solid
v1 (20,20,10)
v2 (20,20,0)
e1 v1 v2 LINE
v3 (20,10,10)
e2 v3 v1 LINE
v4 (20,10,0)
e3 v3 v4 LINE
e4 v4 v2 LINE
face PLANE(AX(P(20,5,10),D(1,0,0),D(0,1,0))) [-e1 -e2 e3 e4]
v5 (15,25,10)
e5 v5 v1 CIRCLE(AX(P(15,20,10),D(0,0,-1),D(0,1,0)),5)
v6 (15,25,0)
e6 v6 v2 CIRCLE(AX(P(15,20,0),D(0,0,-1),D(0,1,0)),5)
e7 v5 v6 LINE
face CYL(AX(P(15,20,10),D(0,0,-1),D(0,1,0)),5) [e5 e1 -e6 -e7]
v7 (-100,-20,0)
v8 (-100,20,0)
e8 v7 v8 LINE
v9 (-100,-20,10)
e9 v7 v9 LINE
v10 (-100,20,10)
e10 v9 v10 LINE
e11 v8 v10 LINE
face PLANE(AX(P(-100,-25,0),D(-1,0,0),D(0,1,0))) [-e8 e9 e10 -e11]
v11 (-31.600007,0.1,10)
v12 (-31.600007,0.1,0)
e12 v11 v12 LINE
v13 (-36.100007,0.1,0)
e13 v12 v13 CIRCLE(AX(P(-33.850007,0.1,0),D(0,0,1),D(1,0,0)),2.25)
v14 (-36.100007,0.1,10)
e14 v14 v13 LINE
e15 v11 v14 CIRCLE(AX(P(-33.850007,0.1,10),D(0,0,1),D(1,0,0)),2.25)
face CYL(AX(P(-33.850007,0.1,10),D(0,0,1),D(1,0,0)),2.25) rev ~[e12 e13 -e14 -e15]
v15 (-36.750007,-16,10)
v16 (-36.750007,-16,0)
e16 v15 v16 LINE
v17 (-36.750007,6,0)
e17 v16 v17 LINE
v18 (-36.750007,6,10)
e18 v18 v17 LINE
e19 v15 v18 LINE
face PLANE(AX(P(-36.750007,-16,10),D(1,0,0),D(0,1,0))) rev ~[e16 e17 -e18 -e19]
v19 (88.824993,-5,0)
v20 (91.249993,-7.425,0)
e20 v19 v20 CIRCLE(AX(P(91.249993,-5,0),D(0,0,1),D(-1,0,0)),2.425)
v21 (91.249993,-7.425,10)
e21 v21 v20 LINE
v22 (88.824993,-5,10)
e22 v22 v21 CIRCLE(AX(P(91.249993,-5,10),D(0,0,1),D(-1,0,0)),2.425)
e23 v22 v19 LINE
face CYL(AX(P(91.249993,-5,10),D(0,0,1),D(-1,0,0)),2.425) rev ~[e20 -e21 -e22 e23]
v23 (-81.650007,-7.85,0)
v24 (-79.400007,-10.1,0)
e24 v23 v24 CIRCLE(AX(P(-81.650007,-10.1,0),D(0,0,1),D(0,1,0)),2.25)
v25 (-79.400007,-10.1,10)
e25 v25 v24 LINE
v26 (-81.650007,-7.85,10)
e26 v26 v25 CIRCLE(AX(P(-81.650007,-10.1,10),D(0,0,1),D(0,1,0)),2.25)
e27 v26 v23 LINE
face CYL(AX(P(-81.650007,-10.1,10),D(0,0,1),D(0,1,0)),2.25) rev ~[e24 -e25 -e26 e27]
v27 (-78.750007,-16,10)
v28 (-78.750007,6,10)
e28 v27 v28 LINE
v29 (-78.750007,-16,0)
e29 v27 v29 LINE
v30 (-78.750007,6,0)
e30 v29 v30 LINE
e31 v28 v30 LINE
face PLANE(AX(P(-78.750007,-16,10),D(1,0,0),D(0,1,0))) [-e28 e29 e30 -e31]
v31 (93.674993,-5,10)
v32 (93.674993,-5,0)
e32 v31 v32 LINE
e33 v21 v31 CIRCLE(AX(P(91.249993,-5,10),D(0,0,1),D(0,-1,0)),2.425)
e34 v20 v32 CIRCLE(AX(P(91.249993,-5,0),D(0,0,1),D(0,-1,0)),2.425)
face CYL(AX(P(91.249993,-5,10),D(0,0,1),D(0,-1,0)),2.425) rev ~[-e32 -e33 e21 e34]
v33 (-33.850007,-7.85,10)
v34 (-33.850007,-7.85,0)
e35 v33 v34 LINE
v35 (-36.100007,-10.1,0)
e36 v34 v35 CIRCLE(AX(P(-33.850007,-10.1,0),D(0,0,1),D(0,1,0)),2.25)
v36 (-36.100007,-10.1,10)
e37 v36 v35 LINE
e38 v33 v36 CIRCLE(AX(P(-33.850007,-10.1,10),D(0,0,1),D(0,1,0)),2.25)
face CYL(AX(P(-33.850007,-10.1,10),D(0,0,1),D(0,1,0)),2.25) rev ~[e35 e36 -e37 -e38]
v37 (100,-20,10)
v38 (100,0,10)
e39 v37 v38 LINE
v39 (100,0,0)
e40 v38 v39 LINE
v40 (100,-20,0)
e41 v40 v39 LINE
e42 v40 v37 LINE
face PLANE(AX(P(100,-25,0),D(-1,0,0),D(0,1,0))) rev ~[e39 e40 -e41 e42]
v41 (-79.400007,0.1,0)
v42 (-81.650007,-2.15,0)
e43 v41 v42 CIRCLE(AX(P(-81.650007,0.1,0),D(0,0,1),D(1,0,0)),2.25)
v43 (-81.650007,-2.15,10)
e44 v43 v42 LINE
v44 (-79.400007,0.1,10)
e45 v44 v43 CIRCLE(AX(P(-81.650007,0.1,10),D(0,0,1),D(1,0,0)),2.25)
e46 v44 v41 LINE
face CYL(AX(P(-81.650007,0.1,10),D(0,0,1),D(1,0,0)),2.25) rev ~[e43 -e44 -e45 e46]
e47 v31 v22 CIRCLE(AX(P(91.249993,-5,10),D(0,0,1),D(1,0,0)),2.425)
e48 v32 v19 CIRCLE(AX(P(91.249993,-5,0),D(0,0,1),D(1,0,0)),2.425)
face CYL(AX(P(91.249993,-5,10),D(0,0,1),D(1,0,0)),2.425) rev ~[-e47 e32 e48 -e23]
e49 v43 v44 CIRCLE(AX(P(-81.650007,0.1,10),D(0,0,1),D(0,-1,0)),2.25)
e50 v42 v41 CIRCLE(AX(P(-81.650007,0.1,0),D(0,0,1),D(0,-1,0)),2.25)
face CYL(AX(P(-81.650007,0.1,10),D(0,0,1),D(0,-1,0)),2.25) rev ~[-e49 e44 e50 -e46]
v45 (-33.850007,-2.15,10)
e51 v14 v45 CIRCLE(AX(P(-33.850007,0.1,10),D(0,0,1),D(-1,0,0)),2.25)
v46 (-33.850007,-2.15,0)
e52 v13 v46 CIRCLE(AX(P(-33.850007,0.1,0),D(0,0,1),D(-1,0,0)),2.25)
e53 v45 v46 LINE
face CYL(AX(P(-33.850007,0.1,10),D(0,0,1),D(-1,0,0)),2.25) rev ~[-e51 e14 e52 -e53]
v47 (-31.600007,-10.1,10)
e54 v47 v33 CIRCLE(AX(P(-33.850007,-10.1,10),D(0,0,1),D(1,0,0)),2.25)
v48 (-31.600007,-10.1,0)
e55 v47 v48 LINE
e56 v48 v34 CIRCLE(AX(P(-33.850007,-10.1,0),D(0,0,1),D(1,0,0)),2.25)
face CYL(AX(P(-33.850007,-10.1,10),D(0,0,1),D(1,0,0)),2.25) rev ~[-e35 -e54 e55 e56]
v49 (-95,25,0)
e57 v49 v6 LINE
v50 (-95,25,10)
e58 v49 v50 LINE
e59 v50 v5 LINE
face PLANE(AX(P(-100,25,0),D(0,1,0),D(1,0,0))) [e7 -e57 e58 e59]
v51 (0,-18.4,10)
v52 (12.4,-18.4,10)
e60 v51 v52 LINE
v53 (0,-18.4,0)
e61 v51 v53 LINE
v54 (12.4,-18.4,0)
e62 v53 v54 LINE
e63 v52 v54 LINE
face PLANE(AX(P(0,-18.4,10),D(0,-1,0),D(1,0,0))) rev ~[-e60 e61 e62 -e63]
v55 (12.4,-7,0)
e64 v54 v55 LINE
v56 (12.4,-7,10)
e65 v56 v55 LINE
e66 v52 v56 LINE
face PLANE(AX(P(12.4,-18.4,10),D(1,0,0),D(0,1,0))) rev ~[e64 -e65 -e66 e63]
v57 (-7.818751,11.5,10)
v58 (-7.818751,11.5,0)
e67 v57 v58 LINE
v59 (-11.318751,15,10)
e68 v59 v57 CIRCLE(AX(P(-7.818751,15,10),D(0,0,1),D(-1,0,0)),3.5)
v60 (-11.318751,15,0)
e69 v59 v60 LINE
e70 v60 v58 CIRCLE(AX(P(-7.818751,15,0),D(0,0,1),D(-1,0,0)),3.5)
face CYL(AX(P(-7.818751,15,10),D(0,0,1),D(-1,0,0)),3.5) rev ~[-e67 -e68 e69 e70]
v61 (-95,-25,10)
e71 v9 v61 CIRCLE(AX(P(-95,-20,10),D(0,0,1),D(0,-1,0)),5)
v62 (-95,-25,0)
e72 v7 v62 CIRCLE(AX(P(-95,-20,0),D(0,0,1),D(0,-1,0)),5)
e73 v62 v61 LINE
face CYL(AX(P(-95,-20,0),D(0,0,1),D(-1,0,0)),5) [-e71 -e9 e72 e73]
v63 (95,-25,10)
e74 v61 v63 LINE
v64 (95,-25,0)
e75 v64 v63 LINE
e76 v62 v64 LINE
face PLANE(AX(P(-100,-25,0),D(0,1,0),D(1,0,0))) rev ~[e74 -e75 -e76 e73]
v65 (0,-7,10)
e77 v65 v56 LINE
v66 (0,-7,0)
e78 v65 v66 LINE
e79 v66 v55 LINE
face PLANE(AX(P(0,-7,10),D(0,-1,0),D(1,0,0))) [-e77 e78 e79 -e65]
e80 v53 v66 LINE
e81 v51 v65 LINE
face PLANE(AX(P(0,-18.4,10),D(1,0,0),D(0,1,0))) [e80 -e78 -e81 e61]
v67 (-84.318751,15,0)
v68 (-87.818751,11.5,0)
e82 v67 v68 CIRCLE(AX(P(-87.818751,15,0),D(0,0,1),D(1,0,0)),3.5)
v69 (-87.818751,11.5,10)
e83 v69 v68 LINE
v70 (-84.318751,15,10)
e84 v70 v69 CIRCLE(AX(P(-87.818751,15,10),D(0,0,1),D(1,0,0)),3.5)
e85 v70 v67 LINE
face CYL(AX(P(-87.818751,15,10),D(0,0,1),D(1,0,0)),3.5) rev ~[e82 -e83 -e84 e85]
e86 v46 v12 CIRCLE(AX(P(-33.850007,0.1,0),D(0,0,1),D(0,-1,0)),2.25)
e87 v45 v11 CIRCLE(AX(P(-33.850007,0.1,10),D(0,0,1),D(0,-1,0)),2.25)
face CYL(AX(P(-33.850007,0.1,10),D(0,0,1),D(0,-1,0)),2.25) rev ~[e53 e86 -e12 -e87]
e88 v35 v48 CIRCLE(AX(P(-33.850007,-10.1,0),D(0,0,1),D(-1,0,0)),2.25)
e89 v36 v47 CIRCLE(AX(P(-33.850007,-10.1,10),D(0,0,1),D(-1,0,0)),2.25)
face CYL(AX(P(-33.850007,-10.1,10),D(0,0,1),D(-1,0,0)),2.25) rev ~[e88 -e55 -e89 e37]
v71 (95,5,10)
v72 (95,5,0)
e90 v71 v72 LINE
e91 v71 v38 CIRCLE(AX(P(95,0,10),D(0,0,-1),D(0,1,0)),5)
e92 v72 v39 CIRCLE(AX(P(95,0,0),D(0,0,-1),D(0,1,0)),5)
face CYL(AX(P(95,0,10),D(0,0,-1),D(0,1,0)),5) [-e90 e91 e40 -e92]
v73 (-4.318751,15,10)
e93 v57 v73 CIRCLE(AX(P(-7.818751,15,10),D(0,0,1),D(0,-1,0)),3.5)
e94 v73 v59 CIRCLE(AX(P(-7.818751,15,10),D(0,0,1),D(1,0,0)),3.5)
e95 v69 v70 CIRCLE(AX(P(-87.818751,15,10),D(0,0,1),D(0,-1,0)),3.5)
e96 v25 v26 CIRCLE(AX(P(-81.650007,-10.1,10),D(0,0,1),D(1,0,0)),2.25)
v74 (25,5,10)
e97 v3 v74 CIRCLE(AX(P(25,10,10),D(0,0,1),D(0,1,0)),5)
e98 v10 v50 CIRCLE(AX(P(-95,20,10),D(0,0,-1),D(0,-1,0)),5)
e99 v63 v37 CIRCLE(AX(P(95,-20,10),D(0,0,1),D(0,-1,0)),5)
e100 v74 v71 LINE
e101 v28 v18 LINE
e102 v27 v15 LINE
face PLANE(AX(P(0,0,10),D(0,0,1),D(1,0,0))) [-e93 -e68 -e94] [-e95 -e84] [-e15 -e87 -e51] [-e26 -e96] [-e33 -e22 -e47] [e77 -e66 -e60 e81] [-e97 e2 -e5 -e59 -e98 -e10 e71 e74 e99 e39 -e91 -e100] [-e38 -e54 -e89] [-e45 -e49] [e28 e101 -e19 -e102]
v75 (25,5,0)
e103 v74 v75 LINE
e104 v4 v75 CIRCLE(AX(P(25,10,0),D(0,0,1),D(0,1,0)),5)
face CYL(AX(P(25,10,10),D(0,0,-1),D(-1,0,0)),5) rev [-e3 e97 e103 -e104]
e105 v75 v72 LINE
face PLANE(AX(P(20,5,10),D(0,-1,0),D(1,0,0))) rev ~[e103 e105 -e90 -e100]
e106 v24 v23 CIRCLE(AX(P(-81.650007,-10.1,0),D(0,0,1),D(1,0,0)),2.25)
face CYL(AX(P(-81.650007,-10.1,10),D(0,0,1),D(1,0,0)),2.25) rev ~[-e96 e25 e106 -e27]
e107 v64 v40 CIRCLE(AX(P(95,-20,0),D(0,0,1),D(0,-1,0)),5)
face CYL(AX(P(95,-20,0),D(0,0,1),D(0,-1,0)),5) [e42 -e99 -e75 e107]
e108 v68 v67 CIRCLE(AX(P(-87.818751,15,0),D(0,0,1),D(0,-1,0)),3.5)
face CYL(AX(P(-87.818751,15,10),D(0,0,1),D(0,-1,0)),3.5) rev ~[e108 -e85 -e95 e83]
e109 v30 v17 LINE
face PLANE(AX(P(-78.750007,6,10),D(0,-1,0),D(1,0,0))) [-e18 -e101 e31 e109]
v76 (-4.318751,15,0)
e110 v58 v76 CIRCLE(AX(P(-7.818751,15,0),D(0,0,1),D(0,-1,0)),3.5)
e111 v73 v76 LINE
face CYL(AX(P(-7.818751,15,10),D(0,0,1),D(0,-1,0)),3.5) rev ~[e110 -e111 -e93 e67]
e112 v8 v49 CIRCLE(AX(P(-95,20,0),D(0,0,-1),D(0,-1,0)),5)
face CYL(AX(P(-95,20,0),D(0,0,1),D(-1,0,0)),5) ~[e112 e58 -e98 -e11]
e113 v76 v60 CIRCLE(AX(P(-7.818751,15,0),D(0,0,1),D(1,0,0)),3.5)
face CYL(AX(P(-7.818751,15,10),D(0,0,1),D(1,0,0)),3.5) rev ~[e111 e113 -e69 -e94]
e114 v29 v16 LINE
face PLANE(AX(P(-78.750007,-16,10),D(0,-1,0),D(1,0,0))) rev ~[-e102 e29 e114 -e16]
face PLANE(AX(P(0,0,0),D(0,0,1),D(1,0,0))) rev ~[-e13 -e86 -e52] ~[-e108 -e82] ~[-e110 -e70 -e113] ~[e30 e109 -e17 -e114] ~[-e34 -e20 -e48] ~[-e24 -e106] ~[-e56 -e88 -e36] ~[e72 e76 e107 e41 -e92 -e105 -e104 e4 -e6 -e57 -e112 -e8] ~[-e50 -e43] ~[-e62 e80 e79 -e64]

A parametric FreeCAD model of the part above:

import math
import FreeCAD as App
import Part
import Sketcher
Q = App.Units.Quantity


def edges_at(feature, points):
    """Names of the edges that pass closest to the given points."""
    edges = feature.Shape.Edges
    near = lambda p: min(range(len(edges)), key=lambda i: edges[i].distToShape(Part.Vertex(*p))[0])
    return sorted({f"Edge{near(p) + 1}" for p in points})

doc = App.newDocument("Part")
body = doc.addObject("PartDesign::Body", "Body")

sketch1 = body.newObject("Sketcher::SketchObject", "Sketch")
sketch1.AttachmentSupport = (doc.getObject("XY_Plane"), [""])
sketch1.MapMode = "FlatFace"
sketch1.addGeometry([
    Part.LineSegment(App.Vector(-100, 25, 0), App.Vector(-100, -25, 0)),
    Part.LineSegment(App.Vector(-100, -25, 0), App.Vector(100, -25, 0)),
    Part.LineSegment(App.Vector(100, -25, 0), App.Vector(100, 25, 0)),
    Part.LineSegment(App.Vector(100, 25, 0), App.Vector(-100, 25, 0)),
], False)
sketch1.addConstraint([
    Sketcher.Constraint("Coincident", 0, 2, 1, 1),
    Sketcher.Constraint("Coincident", 1, 2, 2, 1),
    Sketcher.Constraint("Coincident", 2, 2, 3, 1),
    Sketcher.Constraint("Coincident", 3, 2, 0, 1),
    Sketcher.Constraint("Vertical", 0),
    Sketcher.Constraint("Horizontal", 1),
    Sketcher.Constraint("Vertical", 2),
    Sketcher.Constraint("Horizontal", 3),
    Sketcher.Constraint("Symmetric", 0, 2, 2, 2, -1, 1),
    Sketcher.Constraint("DistanceX", 1, 1, 1, 2, Q("200 mm")),
    Sketcher.Constraint("DistanceY", 0, 2, 0, 1, Q("50 mm")),
])
pad1 = body.newObject("PartDesign::Pad", "Pad")
pad1.Profile = sketch1
pad1.Length = 10

sketch2 = body.newObject("Sketcher::SketchObject", "Sketch001")
sketch2.AttachmentSupport = (doc.getObject("XY_Plane"), [""])
sketch2.MapMode = "FlatFace"
sketch2.AttachmentOffset = App.Placement(App.Vector(0, 0, 10), App.Rotation())
sketch2.addGeometry([
    Part.LineSegment(App.Vector(-78.750007, 6, 0), App.Vector(-78.750007, -16, 0)),
    Part.LineSegment(App.Vector(-78.750007, -16, 0), App.Vector(-36.750007, -16, 0)),
    Part.LineSegment(App.Vector(-36.750007, -16, 0), App.Vector(-36.750007, 6, 0)),
    Part.LineSegment(App.Vector(-36.750007, 6, 0), App.Vector(-78.750007, 6, 0)),
], False)
sketch2.addConstraint([
    Sketcher.Constraint("Coincident", 0, 2, 1, 1),
    Sketcher.Constraint("Coincident", 1, 2, 2, 1),
    Sketcher.Constraint("Coincident", 2, 2, 3, 1),
    Sketcher.Constraint("Coincident", 3, 2, 0, 1),
    Sketcher.Constraint("Vertical", 0),
    Sketcher.Constraint("Horizontal", 1),
    Sketcher.Constraint("Vertical", 2),
    Sketcher.Constraint("Horizontal", 3),
    Sketcher.Constraint("DistanceX", 1, 1, 1, 2, Q("42 mm")),
    Sketcher.Constraint("DistanceY", 0, 2, 0, 1, Q("22 mm")),
    Sketcher.Constraint("DistanceY", 0, 2, -1, 1, Q("16 mm")),
    Sketcher.Constraint("DistanceX", 0, 2, -1, 1, Q("78.750007 mm")),
])
pocket1 = body.newObject("PartDesign::Pocket", "Pocket")
pocket1.Profile = sketch2
pocket1.Type = "ThroughAll"

sketch3 = body.newObject("Sketcher::SketchObject", "Sketch002")
sketch3.AttachmentSupport = (doc.getObject("XY_Plane"), [""])
sketch3.MapMode = "FlatFace"
sketch3.AttachmentOffset = App.Placement(App.Vector(0, 0, 10), App.Rotation())
sketch3.addGeometry([
    Part.ArcOfCircle(Part.Circle(App.Vector(-81.650007, 0.1, 0), App.Vector(0, 0, 1), 2.25), math.radians(0), math.radians(270)),
    Part.ArcOfCircle(Part.Circle(App.Vector(-81.650007, 0.1, 0), App.Vector(0, 0, 1), 2.25), math.radians(-90), math.radians(0)),
    Part.ArcOfCircle(Part.Circle(App.Vector(-81.650007, -10.1, 0), App.Vector(0, 0, 1), 2.25), math.radians(90), math.radians(360)),
    Part.ArcOfCircle(Part.Circle(App.Vector(-81.650007, -10.1, 0), App.Vector(0, 0, 1), 2.25), math.radians(0), math.radians(90)),
    Part.ArcOfCircle(Part.Circle(App.Vector(-33.850007, 0.1, 0), App.Vector(0, 0, 1), 2.25), math.radians(180), math.radians(270)),
    Part.ArcOfCircle(Part.Circle(App.Vector(-33.850007, 0.1, 0), App.Vector(0, 0, 1), 2.25), math.radians(-90), math.radians(0)),
    Part.ArcOfCircle(Part.Circle(App.Vector(-33.850007, 0.1, 0), App.Vector(0, 0, 1), 2.25), math.radians(0), math.radians(180)),
    Part.ArcOfCircle(Part.Circle(App.Vector(-33.850007, -10.1, 0), App.Vector(0, 0, 1), 2.25), math.radians(90), math.radians(180)),
    Part.ArcOfCircle(Part.Circle(App.Vector(-33.850007, -10.1, 0), App.Vector(0, 0, 1), 2.25), math.radians(180), math.radians(360)),
    Part.ArcOfCircle(Part.Circle(App.Vector(-33.850007, -10.1, 0), App.Vector(0, 0, 1), 2.25), math.radians(0), math.radians(90)),
], False)
sketch3.addConstraint([
    Sketcher.Constraint("Tangent", 0, 1, 1, 2),
    Sketcher.Constraint("Coincident", 1, 1, 0, 2),
    Sketcher.Constraint("Tangent", 2, 1, 3, 2),
    Sketcher.Constraint("Coincident", 3, 1, 2, 2),
    Sketcher.Constraint("Tangent", 4, 2, 5, 1),
    Sketcher.Constraint("Tangent", 5, 2, 6, 1),
    Sketcher.Constraint("Tangent", 6, 2, 4, 1),
    Sketcher.Constraint("Tangent", 7, 2, 8, 1),
    Sketcher.Constraint("Tangent", 8, 2, 9, 1),
    Sketcher.Constraint("Tangent", 9, 2, 7, 1),
    Sketcher.Constraint("Equal", 1, 2),
    Sketcher.Constraint("Equal", 3, 4),
    Sketcher.Constraint("Equal", 6, 7),
    Sketcher.Constraint("Horizontal", 1, 3, 4, 3),
    Sketcher.Constraint("Horizontal", 3, 3, 7, 3),
    Sketcher.Constraint("Horizontal", 6, 3, 0, 1),
    Sketcher.Constraint("Horizontal", 9, 3, 3, 1),
    Sketcher.Constraint("Horizontal", 0, 1, 5, 2),
    Sketcher.Constraint("Horizontal", 5, 2, 6, 2),
    Sketcher.Constraint("Horizontal", 3, 1, 7, 2),
    Sketcher.Constraint("Horizontal", 7, 2, 8, 2),
    Sketcher.Constraint("Vertical", 1, 3, 2, 3),
    Sketcher.Constraint("Vertical", 6, 3, 7, 3),
    Sketcher.Constraint("Vertical", 3, 3, 1, 1),
    Sketcher.Constraint("Vertical", 1, 1, 2, 1),
    Sketcher.Constraint("Vertical", 9, 3, 4, 2),
    Sketcher.Constraint("Vertical", 4, 2, 9, 2),
    Sketcher.Constraint("Radius", 0, Q("2.25 mm")),
    Sketcher.Constraint("DistanceY", -1, 1, 0, 3, Q("0.1 mm")),
    Sketcher.Constraint("DistanceY", 2, 3, -1, 1, Q("10.1 mm")),
    Sketcher.Constraint("DistanceX", 0, 3, 4, 3, Q("47.8 mm")),
    Sketcher.Constraint("DistanceX", 0, 3, -1, 1, Q("81.650007 mm")),
])
pocket2 = body.newObject("PartDesign::Pocket", "Pocket001")
pocket2.Profile = sketch3
pocket2.Type = "ThroughAll"

sketch4 = body.newObject("Sketcher::SketchObject", "Sketch003")
sketch4.AttachmentSupport = (doc.getObject("XY_Plane"), [""])
sketch4.MapMode = "FlatFace"
sketch4.AttachmentOffset = App.Placement(App.Vector(0, 0, 10), App.Rotation())
sketch4.addGeometry([
    Part.ArcOfCircle(Part.Circle(App.Vector(-87.818751, 15, 0), App.Vector(0, 0, 1), 3.5), math.radians(0), math.radians(270)),
    Part.ArcOfCircle(Part.Circle(App.Vector(-87.818751, 15, 0), App.Vector(0, 0, 1), 3.5), math.radians(-90), math.radians(0)),
    Part.ArcOfCircle(Part.Circle(App.Vector(-7.818751, 15, 0), App.Vector(0, 0, 1), 3.5), math.radians(180), math.radians(270)),
    Part.ArcOfCircle(Part.Circle(App.Vector(-7.818751, 15, 0), App.Vector(0, 0, 1), 3.5), math.radians(-90), math.radians(0)),
    Part.ArcOfCircle(Part.Circle(App.Vector(-7.818751, 15, 0), App.Vector(0, 0, 1), 3.5), math.radians(0), math.radians(180)),
], False)
sketch4.addConstraint([
    Sketcher.Constraint("Tangent", 0, 1, 1, 2),
    Sketcher.Constraint("Coincident", 1, 1, 0, 2),
    Sketcher.Constraint("Tangent", 2, 2, 3, 1),
    Sketcher.Constraint("Tangent", 3, 2, 4, 1),
    Sketcher.Constraint("Tangent", 4, 2, 2, 1),
    Sketcher.Constraint("Equal", 1, 2),
    Sketcher.Constraint("Horizontal", 1, 3, 2, 3),
    Sketcher.Constraint("Horizontal", 4, 3, 0, 1),
    Sketcher.Constraint("Horizontal", 0, 1, 3, 2),
    Sketcher.Constraint("Horizontal", 3, 2, 4, 2),
    Sketcher.Constraint("Vertical", 0, 3, 1, 1),
    Sketcher.Constraint("Vertical", 4, 3, 2, 2),
    Sketcher.Constraint("Radius", 0, Q("3.5 mm")),
    Sketcher.Constraint("DistanceY", -1, 1, 0, 3, Q("15 mm")),
    Sketcher.Constraint("DistanceX", 0, 3, 2, 3, Q("80 mm")),
    Sketcher.Constraint("DistanceX", 0, 3, -1, 1, Q("87.818751 mm")),
])
pocket3 = body.newObject("PartDesign::Pocket", "Pocket002")
pocket3.Profile = sketch4
pocket3.Type = "ThroughAll"
doc.recompute()

fillet = body.newObject("PartDesign::Fillet", "Fillet")
fillet.Base = (pocket3, edges_at(pocket3, [
    (-100, 25, 5),
    (-100, -25, 5),
    (100, 25, 5),
    (100, -25, 5),
]))
fillet.Radius = 5

sketch5 = body.newObject("Sketcher::SketchObject", "Sketch004")
sketch5.AttachmentSupport = (doc.getObject("XY_Plane"), [""])
sketch5.MapMode = "FlatFace"
sketch5.AttachmentOffset = App.Placement(App.Vector(0, 0, 10), App.Rotation())
sketch5.addGeometry([
    Part.LineSegment(App.Vector(20, 25, 0), App.Vector(20, 5, 0)),
    Part.LineSegment(App.Vector(20, 5, 0), App.Vector(100, 5, 0)),
    Part.LineSegment(App.Vector(100, 5, 0), App.Vector(100, 25, 0)),
    Part.LineSegment(App.Vector(100, 25, 0), App.Vector(20, 25, 0)),
    Part.ArcOfCircle(Part.Circle(App.Vector(91.249993, -5, 0), App.Vector(0, 0, 1), 2.425), math.radians(0), math.radians(180)),
    Part.ArcOfCircle(Part.Circle(App.Vector(91.249993, -5, 0), App.Vector(0, 0, 1), 2.425), math.radians(180), math.radians(270)),
    Part.ArcOfCircle(Part.Circle(App.Vector(91.249993, -5, 0), App.Vector(0, 0, 1), 2.425), math.radians(-90), math.radians(0)),
    Part.LineSegment(App.Vector(0, -7, 0), App.Vector(0, -18.4, 0)),
    Part.LineSegment(App.Vector(0, -18.4, 0), App.Vector(12.4, -18.4, 0)),
    Part.LineSegment(App.Vector(12.4, -18.4, 0), App.Vector(12.4, -7, 0)),
    Part.LineSegment(App.Vector(12.4, -7, 0), App.Vector(0, -7, 0)),
], False)
sketch5.addConstraint([
    Sketcher.Constraint("Coincident", 0, 2, 1, 1),
    Sketcher.Constraint("Coincident", 1, 2, 2, 1),
    Sketcher.Constraint("Coincident", 2, 2, 3, 1),
    Sketcher.Constraint("Coincident", 3, 2, 0, 1),
    Sketcher.Constraint("Tangent", 4, 2, 5, 1),
    Sketcher.Constraint("Tangent", 5, 2, 6, 1),
    Sketcher.Constraint("Tangent", 6, 2, 4, 1),
    Sketcher.Constraint("Coincident", 7, 2, 8, 1),
    Sketcher.Constraint("Coincident", 8, 2, 9, 1),
    Sketcher.Constraint("Coincident", 9, 2, 10, 1),
    Sketcher.Constraint("Coincident", 10, 2, 7, 1),
    Sketcher.Constraint("Vertical", 0),
    Sketcher.Constraint("Horizontal", 1),
    Sketcher.Constraint("Vertical", 2),
    Sketcher.Constraint("Horizontal", 3),
    Sketcher.Constraint("Vertical", 7),
    Sketcher.Constraint("Horizontal", 8),
    Sketcher.Constraint("Vertical", 9),
    Sketcher.Constraint("Horizontal", 10),
    Sketcher.Constraint("PointOnObject", 7, 2, -2),
    Sketcher.Constraint("Horizontal", 6, 3, 4, 2),
    Sketcher.Constraint("Horizontal", 4, 2, 6, 2),
    Sketcher.Constraint("Vertical", 6, 3, 5, 2),
    Sketcher.Constraint("DistanceX", 1, 1, 1, 2, Q("80 mm")),
    Sketcher.Constraint("DistanceY", 0, 2, 0, 1, Q("20 mm")),
    Sketcher.Constraint("DistanceX", 8, 1, 8, 2, Q("12.4 mm")),
    Sketcher.Constraint("DistanceY", 7, 2, 7, 1, Q("11.4 mm")),
    Sketcher.Constraint("DistanceY", 4, 3, -1, 1, Q("5 mm")),
    Sketcher.Constraint("DistanceX", -1, 1, 0, 2, Q("20 mm")),
    Sketcher.Constraint("DistanceY", -1, 1, 0, 2, Q("5 mm")),
    Sketcher.Constraint("DistanceY", 9, 2, -1, 1, Q("7 mm")),
    Sketcher.Constraint("Radius", 4, Q("2.425 mm")),
    Sketcher.Constraint("DistanceX", -1, 1, 4, 3, Q("91.249993 mm")),
])
pocket4 = body.newObject("PartDesign::Pocket", "Pocket003")
pocket4.Profile = sketch5
pocket4.Type = "ThroughAll"
doc.recompute()

fillet2 = body.newObject("PartDesign::Fillet", "Fillet001")
fillet2.Base = (pocket4, edges_at(pocket4, [(20, 25, 5), (20, 5, 5), (100, 5, 5)]))
fillet2.Radius = 5

doc.recompute()
